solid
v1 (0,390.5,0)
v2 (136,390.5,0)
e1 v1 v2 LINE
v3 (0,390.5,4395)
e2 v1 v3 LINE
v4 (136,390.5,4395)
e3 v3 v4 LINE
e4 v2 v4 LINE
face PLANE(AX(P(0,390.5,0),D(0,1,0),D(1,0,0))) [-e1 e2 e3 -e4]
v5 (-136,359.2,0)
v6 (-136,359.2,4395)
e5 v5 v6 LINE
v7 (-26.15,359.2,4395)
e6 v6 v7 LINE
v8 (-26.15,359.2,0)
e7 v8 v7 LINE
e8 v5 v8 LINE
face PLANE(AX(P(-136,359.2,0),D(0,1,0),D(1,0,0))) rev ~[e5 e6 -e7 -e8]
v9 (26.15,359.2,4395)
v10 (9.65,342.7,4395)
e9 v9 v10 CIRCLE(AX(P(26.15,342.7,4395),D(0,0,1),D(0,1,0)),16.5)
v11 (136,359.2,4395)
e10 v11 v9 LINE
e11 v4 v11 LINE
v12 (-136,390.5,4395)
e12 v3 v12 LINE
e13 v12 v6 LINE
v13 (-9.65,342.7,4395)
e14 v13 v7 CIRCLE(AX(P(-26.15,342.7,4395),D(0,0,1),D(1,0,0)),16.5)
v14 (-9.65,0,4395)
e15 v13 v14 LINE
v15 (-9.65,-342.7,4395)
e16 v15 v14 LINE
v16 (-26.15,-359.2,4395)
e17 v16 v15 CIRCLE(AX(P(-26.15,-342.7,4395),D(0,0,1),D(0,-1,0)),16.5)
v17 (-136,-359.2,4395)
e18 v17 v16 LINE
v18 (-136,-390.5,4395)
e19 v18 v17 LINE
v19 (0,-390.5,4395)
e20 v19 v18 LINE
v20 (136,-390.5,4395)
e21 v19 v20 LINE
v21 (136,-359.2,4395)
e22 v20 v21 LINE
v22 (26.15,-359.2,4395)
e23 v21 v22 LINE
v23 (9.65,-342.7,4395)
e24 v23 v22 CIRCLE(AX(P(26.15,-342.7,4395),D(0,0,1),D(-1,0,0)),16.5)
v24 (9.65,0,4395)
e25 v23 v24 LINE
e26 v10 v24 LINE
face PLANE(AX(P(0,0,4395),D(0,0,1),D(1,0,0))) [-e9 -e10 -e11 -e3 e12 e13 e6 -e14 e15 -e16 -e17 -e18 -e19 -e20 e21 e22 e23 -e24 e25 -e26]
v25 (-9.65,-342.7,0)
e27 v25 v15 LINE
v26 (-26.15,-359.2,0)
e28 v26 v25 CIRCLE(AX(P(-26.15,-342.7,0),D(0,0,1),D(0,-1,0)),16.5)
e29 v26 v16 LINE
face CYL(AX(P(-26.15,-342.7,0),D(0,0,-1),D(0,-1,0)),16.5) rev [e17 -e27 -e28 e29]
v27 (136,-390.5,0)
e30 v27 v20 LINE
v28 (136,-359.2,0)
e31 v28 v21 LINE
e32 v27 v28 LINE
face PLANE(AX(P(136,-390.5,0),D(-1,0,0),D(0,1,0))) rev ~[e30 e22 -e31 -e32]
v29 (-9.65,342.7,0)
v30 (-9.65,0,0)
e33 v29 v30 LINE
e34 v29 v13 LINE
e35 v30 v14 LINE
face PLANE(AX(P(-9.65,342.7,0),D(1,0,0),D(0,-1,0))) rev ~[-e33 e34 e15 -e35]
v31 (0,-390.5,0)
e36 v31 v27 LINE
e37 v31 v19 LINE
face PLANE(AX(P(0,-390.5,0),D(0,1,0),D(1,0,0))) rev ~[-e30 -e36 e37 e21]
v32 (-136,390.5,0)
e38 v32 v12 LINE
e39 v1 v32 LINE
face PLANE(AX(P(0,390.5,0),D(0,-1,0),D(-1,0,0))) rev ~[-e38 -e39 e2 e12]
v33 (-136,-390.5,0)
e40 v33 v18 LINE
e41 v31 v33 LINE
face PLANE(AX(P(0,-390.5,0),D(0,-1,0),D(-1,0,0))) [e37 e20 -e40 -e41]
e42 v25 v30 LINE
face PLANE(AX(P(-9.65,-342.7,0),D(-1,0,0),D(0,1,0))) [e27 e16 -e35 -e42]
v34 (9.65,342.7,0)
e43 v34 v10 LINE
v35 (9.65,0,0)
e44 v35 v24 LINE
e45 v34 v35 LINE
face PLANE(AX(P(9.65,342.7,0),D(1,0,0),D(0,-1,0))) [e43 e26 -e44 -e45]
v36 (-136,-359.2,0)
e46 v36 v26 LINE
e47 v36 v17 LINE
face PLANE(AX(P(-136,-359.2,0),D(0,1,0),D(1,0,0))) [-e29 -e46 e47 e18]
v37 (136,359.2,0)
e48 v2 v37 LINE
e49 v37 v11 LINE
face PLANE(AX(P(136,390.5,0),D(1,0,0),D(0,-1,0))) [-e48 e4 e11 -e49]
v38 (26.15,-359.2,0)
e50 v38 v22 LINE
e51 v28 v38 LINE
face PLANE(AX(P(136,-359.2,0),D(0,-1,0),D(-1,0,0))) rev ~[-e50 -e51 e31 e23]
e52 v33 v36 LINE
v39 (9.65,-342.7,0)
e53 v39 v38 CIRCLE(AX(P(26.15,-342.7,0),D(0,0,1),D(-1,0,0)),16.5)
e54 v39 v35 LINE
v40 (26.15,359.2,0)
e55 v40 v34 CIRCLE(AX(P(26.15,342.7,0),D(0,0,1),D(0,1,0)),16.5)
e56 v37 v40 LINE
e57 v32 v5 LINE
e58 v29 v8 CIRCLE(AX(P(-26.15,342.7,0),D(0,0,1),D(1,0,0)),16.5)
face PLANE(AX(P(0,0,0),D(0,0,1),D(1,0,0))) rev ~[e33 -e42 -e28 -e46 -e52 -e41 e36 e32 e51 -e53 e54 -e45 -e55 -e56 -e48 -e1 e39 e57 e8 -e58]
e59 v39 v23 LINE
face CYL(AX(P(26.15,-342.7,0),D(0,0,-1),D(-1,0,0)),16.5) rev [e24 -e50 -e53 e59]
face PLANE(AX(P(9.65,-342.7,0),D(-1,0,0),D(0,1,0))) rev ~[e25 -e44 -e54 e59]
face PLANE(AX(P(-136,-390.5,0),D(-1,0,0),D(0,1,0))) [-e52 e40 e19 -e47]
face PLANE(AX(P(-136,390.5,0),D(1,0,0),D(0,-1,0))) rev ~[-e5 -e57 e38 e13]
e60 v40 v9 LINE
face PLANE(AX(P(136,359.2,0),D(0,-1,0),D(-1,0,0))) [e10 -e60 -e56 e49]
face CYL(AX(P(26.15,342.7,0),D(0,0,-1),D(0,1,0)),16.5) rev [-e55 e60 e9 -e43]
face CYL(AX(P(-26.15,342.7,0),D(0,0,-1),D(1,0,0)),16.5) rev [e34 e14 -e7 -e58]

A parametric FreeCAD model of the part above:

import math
import FreeCAD as App
import Part
import Sketcher
Q = App.Units.Quantity

doc = App.newDocument("Part")
params = doc.addObject("Spreadsheet::Sheet", "Params")
for row, (alias, value) in enumerate([
    ("sketch1_radius", "16.5 mm"),
    ("sketch1_height", "31.3 mm"),
    ("pad1_length", "4395 mm"),
], start=1):
    params.set(f"A{row}", alias)
    params.set(f"B{row}", "=" + value)
    params.setAlias(f"B{row}", alias)

body = doc.addObject("PartDesign::Body", "Body")

sketch1 = body.newObject("Sketcher::SketchObject", "Sketch")
sketch1.AttachmentSupport = (doc.getObject("XY_Plane"), [""])
sketch1.MapMode = "FlatFace"
sketch1.addGeometry(Part.LineSegment(App.Vector(-136, -359, 0), App.Vector(-136, -390, 0)), False)
sketch1.addGeometry(Part.LineSegment(App.Vector(-136, -390, 0), App.Vector(136, -390, 0)), False)
sketch1.addGeometry(Part.LineSegment(App.Vector(136, -390, 0), App.Vector(136, -359, 0)), False)
sketch1.addGeometry(Part.LineSegment(App.Vector(136, -359, 0), App.Vector(26, -359, 0)), False)
sketch1.addGeometry(Part.ArcOfCircle(Part.Circle(App.Vector(26, -343, 0), App.Vector(0, 0, 1), 16), math.radians(180), math.radians(270)), False)
sketch1.addGeometry(Part.LineSegment(App.Vector(10, -343, 0), App.Vector(10, 343, 0)), False)
sketch1.addGeometry(Part.ArcOfCircle(Part.Circle(App.Vector(26, 343, 0), App.Vector(0, 0, 1), 16), math.radians(90), math.radians(180)), False)
sketch1.addGeometry(Part.LineSegment(App.Vector(26, 359, 0), App.Vector(136, 359, 0)), False)
sketch1.addGeometry(Part.LineSegment(App.Vector(136, 359, 0), App.Vector(136, 390, 0)), False)
sketch1.addGeometry(Part.LineSegment(App.Vector(136, 390, 0), App.Vector(-136, 390, 0)), False)
sketch1.addGeometry(Part.LineSegment(App.Vector(-136, 390, 0), App.Vector(-136, 359, 0)), False)
sketch1.addGeometry(Part.LineSegment(App.Vector(-136, 359, 0), App.Vector(-26, 359, 0)), False)
sketch1.addGeometry(Part.ArcOfCircle(Part.Circle(App.Vector(-26, 343, 0), App.Vector(0, 0, 1), 16), math.radians(0), math.radians(90)), False)
sketch1.addGeometry(Part.LineSegment(App.Vector(-10, 343, 0), App.Vector(-10, -343, 0)), False)
sketch1.addGeometry(Part.ArcOfCircle(Part.Circle(App.Vector(-26, -343, 0), App.Vector(0, 0, 1), 16), math.radians(-90), math.radians(0)), False)
sketch1.addGeometry(Part.LineSegment(App.Vector(-26, -359, 0), App.Vector(-136, -359, 0)), False)
sketch1.addConstraint(Sketcher.Constraint("Coincident", 0, 2, 1, 1))
sketch1.addConstraint(Sketcher.Constraint("Coincident", 1, 2, 2, 1))
sketch1.addConstraint(Sketcher.Constraint("Coincident", 2, 2, 3, 1))
sketch1.addConstraint(Sketcher.Constraint("Tangent", 3, 2, 4, 2))
sketch1.addConstraint(Sketcher.Constraint("Tangent", 4, 1, 5, 1))
sketch1.addConstraint(Sketcher.Constraint("Tangent", 5, 2, 6, 2))
sketch1.addConstraint(Sketcher.Constraint("Tangent", 6, 1, 7, 1))
sketch1.addConstraint(Sketcher.Constraint("Coincident", 7, 2, 8, 1))
sketch1.addConstraint(Sketcher.Constraint("Coincident", 8, 2, 9, 1))
sketch1.addConstraint(Sketcher.Constraint("Coincident", 9, 2, 10, 1))
sketch1.addConstraint(Sketcher.Constraint("Coincident", 10, 2, 11, 1))
sketch1.addConstraint(Sketcher.Constraint("Tangent", 11, 2, 12, 2))
sketch1.addConstraint(Sketcher.Constraint("Tangent", 12, 1, 13, 1))
sketch1.addConstraint(Sketcher.Constraint("Tangent", 13, 2, 14, 2))
sketch1.addConstraint(Sketcher.Constraint("Tangent", 14, 1, 15, 1))
sketch1.addConstraint(Sketcher.Constraint("Coincident", 15, 2, 0, 1))
sketch1.addConstraint(Sketcher.Constraint("Vertical", 0))
sketch1.addConstraint(Sketcher.Constraint("Horizontal", 1))
sketch1.addConstraint(Sketcher.Constraint("Vertical", 2))
sketch1.addConstraint(Sketcher.Constraint("Horizontal", 3))
sketch1.addConstraint(Sketcher.Constraint("Vertical", 5))
sketch1.addConstraint(Sketcher.Constraint("Horizontal", 7))
sketch1.addConstraint(Sketcher.Constraint("Vertical", 8))
sketch1.addConstraint(Sketcher.Constraint("Horizontal", 9))
sketch1.addConstraint(Sketcher.Constraint("Vertical", 10))
sketch1.addConstraint(Sketcher.Constraint("Horizontal", 11))
sketch1.addConstraint(Sketcher.Constraint("Vertical", 13))
sketch1.addConstraint(Sketcher.Constraint("Horizontal", 15))
sketch1.addConstraint(Sketcher.Constraint("Equal", 4, 6))
sketch1.addConstraint(Sketcher.Constraint("Equal", 6, 12))
sketch1.addConstraint(Sketcher.Constraint("Equal", 12, 14))
sketch1.addConstraint(Sketcher.Constraint("Symmetric", 4, 3, 12, 3, -1, 1))
sketch1.addConstraint(Sketcher.Constraint("Symmetric", 0, 2, 8, 2, -1, 1))
sketch1.addConstraint(Sketcher.Constraint("Symmetric", 7, 2, 10, 2, -2))
sketch1.addConstraint(Sketcher.Constraint("Symmetric", 2, 2, 15, 2, -2))
sketch1.addConstraint(Sketcher.Constraint("Radius", 4, Q("16.5 mm")))
sketch1.addConstraint(Sketcher.Constraint("DistanceY", 0, 2, 0, 1, Q("31.3 mm")))
sketch1.addConstraint(Sketcher.Constraint("DistanceX", 0, 2, -1, 1, Q("136 mm")))
sketch1.addConstraint(Sketcher.Constraint("DistanceY", 0, 2, -1, 1, Q("390.5 mm")))
sketch1.addConstraint(Sketcher.Constraint("DistanceX", -1, 1, 4, 1, Q("9.65 mm")))
sketch1.setExpression("Constraints[35]", "Params.sketch1_radius")
sketch1.setExpression("Constraints[36]", "Params.sketch1_height")
pad1 = body.newObject("PartDesign::Pad", "Pad")
pad1.Profile = sketch1
pad1.setExpression("Length", "Params.pad1_length")

doc.recompute()
